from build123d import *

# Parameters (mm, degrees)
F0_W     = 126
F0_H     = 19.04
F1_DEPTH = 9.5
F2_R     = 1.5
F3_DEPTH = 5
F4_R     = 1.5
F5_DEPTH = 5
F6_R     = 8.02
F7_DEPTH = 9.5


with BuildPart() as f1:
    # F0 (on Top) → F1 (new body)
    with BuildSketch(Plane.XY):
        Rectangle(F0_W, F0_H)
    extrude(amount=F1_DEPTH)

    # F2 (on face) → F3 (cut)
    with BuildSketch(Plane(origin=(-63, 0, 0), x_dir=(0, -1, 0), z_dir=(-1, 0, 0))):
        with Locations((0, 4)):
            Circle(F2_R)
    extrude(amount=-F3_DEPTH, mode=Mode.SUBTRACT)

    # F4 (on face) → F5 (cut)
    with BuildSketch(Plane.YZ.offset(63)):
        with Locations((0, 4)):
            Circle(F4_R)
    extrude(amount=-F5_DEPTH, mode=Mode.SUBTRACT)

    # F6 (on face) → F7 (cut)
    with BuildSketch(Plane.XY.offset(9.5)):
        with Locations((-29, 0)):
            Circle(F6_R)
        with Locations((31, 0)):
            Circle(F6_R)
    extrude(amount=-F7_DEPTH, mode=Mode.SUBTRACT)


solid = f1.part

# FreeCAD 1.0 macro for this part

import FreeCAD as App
import Part
import Sketcher

V = App.Vector
Q = App.Units.Quantity

doc = App.newDocument("Part")
params = doc.addObject("Spreadsheet::Sheet", "Params")
for row, (alias, value) in enumerate([
    ("sketch1_width", "126 mm"),
    ("sketch1_height", "19.04 mm"),
    ("pad1_length", "9.5 mm"),
    ("sketch2_diameter", "3 mm"),
    ("pocket1_length", "5 mm"),
    ("sketch3_diameter", "3 mm"),
    ("pocket2_length", "5 mm"),
    ("sketch4_diameter", "16.04 mm"),
    ("pocket3_length", "9.5 mm"),
], start=1):
    params.set(f"A{row}", alias)
    params.set(f"B{row}", "=" + value)
    params.setAlias(f"B{row}", alias)

body = doc.addObject("PartDesign::Body", "Body")

sketch1 = body.newObject("Sketcher::SketchObject", "Sketch")
sketch1.AttachmentSupport = (doc.getObject("XY_Plane"), [""])
sketch1.MapMode = "FlatFace"
sketch1.addGeometry([
    Part.LineSegment(V(-63, 10, 0), V(-63, -10, 0)),
    Part.LineSegment(V(-63, -10, 0), V(63, -10, 0)),
    Part.LineSegment(V(63, -10, 0), V(63, 10, 0)),
    Part.LineSegment(V(63, 10, 0), V(-63, 10, 0)),
], False)
sketch1.addConstraint([
    Sketcher.Constraint("Coincident", 0, 2, 1, 1),
    Sketcher.Constraint("Coincident", 1, 2, 2, 1),
    Sketcher.Constraint("Coincident", 2, 2, 3, 1),
    Sketcher.Constraint("Coincident", 3, 2, 0, 1),
    Sketcher.Constraint("Vertical", 0),
    Sketcher.Constraint("Horizontal", 1),
    Sketcher.Constraint("Vertical", 2),
    Sketcher.Constraint("Horizontal", 3),
    Sketcher.Constraint("Symmetric", 0, 2, 2, 2, -1, 1),
    Sketcher.Constraint("DistanceX", 1, 1, 1, 2, Q("126 mm")),
    Sketcher.Constraint("DistanceY", 0, 2, 0, 1, Q("19.04 mm")),
])
sketch1.setExpression("Constraints[9]", "Params.sketch1_width")
sketch1.setExpression("Constraints[10]", "Params.sketch1_height")
pad1 = body.newObject("PartDesign::Pad", "Pad")
pad1.Profile = sketch1
pad1.setExpression("Length", "Params.pad1_length")

sketch2 = body.newObject("Sketcher::SketchObject", "Sketch001")
sketch2.AttachmentSupport = (doc.getObject("YZ_Plane"), [""])
sketch2.MapMode = "FlatFace"
sketch2.AttachmentOffset = App.Placement(V(0, 0, -63), App.Rotation())
sketch2.addGeometry(Part.Circle(V(0, 4, 0), V(0, 0, 1), 1.5), False)
sketch2.addConstraint([
    Sketcher.Constraint("PointOnObject", 0, 3, -2),
    Sketcher.Constraint("Diameter", 0, Q("3 mm")),
    Sketcher.Constraint("DistanceY", -1, 1, 0, 3, Q("4 mm")),
])
sketch2.setExpression("Constraints[1]", "Params.sketch2_diameter")
pocket1 = body.newObject("PartDesign::Pocket", "Pocket")
pocket1.Profile = sketch2
pocket1.setExpression("Length", "Params.pocket1_length")
pocket1.Reversed = True

sketch3 = body.newObject("Sketcher::SketchObject", "Sketch002")
sketch3.AttachmentSupport = (doc.getObject("YZ_Plane"), [""])
sketch3.MapMode = "FlatFace"
sketch3.AttachmentOffset = App.Placement(V(0, 0, 63), App.Rotation())
sketch3.addGeometry(Part.Circle(V(0, 4, 0), V(0, 0, 1), 1.5), False)
sketch3.addConstraint([
    Sketcher.Constraint("PointOnObject", 0, 3, -2),
    Sketcher.Constraint("Diameter", 0, Q("3 mm")),
    Sketcher.Constraint("DistanceY", -1, 1, 0, 3, Q("4 mm")),
])
sketch3.setExpression("Constraints[1]", "Params.sketch3_diameter")
pocket2 = body.newObject("PartDesign::Pocket", "Pocket001")
pocket2.Profile = sketch3
pocket2.setExpression("Length", "Params.pocket2_length")

sketch4 = body.newObject("Sketcher::SketchObject", "Sketch003")
sketch4.AttachmentSupport = (doc.getObject("XY_Plane"), [""])
sketch4.MapMode = "FlatFace"
sketch4.AttachmentOffset = App.Placement(V(0, 0, 9.5), App.Rotation())
sketch4.addGeometry([
    Part.Circle(V(-29, 0, 0), V(0, 0, 1), 8),
    Part.Circle(V(31, 0, 0), V(0, 0, 1), 8),
], False)
sketch4.addConstraint([
    Sketcher.Constraint("Equal", 0, 1),
    Sketcher.Constraint("PointOnObject", 0, 3, -1),
    Sketcher.Constraint("PointOnObject", 1, 3, -1),
    Sketcher.Constraint("Diameter", 0, Q("16.04 mm")),
    Sketcher.Constraint("DistanceX", 0, 3, -1, 1, Q("29 mm")),
    Sketcher.Constraint("DistanceX", -1, 1, 1, 3, Q("31 mm")),
])
sketch4.setExpression("Constraints[3]", "Params.sketch4_diameter")
pocket3 = body.newObject("PartDesign::Pocket", "Pocket002")
pocket3.Profile = sketch4
pocket3.setExpression("Length", "Params.pocket3_length")

doc.recompute()
